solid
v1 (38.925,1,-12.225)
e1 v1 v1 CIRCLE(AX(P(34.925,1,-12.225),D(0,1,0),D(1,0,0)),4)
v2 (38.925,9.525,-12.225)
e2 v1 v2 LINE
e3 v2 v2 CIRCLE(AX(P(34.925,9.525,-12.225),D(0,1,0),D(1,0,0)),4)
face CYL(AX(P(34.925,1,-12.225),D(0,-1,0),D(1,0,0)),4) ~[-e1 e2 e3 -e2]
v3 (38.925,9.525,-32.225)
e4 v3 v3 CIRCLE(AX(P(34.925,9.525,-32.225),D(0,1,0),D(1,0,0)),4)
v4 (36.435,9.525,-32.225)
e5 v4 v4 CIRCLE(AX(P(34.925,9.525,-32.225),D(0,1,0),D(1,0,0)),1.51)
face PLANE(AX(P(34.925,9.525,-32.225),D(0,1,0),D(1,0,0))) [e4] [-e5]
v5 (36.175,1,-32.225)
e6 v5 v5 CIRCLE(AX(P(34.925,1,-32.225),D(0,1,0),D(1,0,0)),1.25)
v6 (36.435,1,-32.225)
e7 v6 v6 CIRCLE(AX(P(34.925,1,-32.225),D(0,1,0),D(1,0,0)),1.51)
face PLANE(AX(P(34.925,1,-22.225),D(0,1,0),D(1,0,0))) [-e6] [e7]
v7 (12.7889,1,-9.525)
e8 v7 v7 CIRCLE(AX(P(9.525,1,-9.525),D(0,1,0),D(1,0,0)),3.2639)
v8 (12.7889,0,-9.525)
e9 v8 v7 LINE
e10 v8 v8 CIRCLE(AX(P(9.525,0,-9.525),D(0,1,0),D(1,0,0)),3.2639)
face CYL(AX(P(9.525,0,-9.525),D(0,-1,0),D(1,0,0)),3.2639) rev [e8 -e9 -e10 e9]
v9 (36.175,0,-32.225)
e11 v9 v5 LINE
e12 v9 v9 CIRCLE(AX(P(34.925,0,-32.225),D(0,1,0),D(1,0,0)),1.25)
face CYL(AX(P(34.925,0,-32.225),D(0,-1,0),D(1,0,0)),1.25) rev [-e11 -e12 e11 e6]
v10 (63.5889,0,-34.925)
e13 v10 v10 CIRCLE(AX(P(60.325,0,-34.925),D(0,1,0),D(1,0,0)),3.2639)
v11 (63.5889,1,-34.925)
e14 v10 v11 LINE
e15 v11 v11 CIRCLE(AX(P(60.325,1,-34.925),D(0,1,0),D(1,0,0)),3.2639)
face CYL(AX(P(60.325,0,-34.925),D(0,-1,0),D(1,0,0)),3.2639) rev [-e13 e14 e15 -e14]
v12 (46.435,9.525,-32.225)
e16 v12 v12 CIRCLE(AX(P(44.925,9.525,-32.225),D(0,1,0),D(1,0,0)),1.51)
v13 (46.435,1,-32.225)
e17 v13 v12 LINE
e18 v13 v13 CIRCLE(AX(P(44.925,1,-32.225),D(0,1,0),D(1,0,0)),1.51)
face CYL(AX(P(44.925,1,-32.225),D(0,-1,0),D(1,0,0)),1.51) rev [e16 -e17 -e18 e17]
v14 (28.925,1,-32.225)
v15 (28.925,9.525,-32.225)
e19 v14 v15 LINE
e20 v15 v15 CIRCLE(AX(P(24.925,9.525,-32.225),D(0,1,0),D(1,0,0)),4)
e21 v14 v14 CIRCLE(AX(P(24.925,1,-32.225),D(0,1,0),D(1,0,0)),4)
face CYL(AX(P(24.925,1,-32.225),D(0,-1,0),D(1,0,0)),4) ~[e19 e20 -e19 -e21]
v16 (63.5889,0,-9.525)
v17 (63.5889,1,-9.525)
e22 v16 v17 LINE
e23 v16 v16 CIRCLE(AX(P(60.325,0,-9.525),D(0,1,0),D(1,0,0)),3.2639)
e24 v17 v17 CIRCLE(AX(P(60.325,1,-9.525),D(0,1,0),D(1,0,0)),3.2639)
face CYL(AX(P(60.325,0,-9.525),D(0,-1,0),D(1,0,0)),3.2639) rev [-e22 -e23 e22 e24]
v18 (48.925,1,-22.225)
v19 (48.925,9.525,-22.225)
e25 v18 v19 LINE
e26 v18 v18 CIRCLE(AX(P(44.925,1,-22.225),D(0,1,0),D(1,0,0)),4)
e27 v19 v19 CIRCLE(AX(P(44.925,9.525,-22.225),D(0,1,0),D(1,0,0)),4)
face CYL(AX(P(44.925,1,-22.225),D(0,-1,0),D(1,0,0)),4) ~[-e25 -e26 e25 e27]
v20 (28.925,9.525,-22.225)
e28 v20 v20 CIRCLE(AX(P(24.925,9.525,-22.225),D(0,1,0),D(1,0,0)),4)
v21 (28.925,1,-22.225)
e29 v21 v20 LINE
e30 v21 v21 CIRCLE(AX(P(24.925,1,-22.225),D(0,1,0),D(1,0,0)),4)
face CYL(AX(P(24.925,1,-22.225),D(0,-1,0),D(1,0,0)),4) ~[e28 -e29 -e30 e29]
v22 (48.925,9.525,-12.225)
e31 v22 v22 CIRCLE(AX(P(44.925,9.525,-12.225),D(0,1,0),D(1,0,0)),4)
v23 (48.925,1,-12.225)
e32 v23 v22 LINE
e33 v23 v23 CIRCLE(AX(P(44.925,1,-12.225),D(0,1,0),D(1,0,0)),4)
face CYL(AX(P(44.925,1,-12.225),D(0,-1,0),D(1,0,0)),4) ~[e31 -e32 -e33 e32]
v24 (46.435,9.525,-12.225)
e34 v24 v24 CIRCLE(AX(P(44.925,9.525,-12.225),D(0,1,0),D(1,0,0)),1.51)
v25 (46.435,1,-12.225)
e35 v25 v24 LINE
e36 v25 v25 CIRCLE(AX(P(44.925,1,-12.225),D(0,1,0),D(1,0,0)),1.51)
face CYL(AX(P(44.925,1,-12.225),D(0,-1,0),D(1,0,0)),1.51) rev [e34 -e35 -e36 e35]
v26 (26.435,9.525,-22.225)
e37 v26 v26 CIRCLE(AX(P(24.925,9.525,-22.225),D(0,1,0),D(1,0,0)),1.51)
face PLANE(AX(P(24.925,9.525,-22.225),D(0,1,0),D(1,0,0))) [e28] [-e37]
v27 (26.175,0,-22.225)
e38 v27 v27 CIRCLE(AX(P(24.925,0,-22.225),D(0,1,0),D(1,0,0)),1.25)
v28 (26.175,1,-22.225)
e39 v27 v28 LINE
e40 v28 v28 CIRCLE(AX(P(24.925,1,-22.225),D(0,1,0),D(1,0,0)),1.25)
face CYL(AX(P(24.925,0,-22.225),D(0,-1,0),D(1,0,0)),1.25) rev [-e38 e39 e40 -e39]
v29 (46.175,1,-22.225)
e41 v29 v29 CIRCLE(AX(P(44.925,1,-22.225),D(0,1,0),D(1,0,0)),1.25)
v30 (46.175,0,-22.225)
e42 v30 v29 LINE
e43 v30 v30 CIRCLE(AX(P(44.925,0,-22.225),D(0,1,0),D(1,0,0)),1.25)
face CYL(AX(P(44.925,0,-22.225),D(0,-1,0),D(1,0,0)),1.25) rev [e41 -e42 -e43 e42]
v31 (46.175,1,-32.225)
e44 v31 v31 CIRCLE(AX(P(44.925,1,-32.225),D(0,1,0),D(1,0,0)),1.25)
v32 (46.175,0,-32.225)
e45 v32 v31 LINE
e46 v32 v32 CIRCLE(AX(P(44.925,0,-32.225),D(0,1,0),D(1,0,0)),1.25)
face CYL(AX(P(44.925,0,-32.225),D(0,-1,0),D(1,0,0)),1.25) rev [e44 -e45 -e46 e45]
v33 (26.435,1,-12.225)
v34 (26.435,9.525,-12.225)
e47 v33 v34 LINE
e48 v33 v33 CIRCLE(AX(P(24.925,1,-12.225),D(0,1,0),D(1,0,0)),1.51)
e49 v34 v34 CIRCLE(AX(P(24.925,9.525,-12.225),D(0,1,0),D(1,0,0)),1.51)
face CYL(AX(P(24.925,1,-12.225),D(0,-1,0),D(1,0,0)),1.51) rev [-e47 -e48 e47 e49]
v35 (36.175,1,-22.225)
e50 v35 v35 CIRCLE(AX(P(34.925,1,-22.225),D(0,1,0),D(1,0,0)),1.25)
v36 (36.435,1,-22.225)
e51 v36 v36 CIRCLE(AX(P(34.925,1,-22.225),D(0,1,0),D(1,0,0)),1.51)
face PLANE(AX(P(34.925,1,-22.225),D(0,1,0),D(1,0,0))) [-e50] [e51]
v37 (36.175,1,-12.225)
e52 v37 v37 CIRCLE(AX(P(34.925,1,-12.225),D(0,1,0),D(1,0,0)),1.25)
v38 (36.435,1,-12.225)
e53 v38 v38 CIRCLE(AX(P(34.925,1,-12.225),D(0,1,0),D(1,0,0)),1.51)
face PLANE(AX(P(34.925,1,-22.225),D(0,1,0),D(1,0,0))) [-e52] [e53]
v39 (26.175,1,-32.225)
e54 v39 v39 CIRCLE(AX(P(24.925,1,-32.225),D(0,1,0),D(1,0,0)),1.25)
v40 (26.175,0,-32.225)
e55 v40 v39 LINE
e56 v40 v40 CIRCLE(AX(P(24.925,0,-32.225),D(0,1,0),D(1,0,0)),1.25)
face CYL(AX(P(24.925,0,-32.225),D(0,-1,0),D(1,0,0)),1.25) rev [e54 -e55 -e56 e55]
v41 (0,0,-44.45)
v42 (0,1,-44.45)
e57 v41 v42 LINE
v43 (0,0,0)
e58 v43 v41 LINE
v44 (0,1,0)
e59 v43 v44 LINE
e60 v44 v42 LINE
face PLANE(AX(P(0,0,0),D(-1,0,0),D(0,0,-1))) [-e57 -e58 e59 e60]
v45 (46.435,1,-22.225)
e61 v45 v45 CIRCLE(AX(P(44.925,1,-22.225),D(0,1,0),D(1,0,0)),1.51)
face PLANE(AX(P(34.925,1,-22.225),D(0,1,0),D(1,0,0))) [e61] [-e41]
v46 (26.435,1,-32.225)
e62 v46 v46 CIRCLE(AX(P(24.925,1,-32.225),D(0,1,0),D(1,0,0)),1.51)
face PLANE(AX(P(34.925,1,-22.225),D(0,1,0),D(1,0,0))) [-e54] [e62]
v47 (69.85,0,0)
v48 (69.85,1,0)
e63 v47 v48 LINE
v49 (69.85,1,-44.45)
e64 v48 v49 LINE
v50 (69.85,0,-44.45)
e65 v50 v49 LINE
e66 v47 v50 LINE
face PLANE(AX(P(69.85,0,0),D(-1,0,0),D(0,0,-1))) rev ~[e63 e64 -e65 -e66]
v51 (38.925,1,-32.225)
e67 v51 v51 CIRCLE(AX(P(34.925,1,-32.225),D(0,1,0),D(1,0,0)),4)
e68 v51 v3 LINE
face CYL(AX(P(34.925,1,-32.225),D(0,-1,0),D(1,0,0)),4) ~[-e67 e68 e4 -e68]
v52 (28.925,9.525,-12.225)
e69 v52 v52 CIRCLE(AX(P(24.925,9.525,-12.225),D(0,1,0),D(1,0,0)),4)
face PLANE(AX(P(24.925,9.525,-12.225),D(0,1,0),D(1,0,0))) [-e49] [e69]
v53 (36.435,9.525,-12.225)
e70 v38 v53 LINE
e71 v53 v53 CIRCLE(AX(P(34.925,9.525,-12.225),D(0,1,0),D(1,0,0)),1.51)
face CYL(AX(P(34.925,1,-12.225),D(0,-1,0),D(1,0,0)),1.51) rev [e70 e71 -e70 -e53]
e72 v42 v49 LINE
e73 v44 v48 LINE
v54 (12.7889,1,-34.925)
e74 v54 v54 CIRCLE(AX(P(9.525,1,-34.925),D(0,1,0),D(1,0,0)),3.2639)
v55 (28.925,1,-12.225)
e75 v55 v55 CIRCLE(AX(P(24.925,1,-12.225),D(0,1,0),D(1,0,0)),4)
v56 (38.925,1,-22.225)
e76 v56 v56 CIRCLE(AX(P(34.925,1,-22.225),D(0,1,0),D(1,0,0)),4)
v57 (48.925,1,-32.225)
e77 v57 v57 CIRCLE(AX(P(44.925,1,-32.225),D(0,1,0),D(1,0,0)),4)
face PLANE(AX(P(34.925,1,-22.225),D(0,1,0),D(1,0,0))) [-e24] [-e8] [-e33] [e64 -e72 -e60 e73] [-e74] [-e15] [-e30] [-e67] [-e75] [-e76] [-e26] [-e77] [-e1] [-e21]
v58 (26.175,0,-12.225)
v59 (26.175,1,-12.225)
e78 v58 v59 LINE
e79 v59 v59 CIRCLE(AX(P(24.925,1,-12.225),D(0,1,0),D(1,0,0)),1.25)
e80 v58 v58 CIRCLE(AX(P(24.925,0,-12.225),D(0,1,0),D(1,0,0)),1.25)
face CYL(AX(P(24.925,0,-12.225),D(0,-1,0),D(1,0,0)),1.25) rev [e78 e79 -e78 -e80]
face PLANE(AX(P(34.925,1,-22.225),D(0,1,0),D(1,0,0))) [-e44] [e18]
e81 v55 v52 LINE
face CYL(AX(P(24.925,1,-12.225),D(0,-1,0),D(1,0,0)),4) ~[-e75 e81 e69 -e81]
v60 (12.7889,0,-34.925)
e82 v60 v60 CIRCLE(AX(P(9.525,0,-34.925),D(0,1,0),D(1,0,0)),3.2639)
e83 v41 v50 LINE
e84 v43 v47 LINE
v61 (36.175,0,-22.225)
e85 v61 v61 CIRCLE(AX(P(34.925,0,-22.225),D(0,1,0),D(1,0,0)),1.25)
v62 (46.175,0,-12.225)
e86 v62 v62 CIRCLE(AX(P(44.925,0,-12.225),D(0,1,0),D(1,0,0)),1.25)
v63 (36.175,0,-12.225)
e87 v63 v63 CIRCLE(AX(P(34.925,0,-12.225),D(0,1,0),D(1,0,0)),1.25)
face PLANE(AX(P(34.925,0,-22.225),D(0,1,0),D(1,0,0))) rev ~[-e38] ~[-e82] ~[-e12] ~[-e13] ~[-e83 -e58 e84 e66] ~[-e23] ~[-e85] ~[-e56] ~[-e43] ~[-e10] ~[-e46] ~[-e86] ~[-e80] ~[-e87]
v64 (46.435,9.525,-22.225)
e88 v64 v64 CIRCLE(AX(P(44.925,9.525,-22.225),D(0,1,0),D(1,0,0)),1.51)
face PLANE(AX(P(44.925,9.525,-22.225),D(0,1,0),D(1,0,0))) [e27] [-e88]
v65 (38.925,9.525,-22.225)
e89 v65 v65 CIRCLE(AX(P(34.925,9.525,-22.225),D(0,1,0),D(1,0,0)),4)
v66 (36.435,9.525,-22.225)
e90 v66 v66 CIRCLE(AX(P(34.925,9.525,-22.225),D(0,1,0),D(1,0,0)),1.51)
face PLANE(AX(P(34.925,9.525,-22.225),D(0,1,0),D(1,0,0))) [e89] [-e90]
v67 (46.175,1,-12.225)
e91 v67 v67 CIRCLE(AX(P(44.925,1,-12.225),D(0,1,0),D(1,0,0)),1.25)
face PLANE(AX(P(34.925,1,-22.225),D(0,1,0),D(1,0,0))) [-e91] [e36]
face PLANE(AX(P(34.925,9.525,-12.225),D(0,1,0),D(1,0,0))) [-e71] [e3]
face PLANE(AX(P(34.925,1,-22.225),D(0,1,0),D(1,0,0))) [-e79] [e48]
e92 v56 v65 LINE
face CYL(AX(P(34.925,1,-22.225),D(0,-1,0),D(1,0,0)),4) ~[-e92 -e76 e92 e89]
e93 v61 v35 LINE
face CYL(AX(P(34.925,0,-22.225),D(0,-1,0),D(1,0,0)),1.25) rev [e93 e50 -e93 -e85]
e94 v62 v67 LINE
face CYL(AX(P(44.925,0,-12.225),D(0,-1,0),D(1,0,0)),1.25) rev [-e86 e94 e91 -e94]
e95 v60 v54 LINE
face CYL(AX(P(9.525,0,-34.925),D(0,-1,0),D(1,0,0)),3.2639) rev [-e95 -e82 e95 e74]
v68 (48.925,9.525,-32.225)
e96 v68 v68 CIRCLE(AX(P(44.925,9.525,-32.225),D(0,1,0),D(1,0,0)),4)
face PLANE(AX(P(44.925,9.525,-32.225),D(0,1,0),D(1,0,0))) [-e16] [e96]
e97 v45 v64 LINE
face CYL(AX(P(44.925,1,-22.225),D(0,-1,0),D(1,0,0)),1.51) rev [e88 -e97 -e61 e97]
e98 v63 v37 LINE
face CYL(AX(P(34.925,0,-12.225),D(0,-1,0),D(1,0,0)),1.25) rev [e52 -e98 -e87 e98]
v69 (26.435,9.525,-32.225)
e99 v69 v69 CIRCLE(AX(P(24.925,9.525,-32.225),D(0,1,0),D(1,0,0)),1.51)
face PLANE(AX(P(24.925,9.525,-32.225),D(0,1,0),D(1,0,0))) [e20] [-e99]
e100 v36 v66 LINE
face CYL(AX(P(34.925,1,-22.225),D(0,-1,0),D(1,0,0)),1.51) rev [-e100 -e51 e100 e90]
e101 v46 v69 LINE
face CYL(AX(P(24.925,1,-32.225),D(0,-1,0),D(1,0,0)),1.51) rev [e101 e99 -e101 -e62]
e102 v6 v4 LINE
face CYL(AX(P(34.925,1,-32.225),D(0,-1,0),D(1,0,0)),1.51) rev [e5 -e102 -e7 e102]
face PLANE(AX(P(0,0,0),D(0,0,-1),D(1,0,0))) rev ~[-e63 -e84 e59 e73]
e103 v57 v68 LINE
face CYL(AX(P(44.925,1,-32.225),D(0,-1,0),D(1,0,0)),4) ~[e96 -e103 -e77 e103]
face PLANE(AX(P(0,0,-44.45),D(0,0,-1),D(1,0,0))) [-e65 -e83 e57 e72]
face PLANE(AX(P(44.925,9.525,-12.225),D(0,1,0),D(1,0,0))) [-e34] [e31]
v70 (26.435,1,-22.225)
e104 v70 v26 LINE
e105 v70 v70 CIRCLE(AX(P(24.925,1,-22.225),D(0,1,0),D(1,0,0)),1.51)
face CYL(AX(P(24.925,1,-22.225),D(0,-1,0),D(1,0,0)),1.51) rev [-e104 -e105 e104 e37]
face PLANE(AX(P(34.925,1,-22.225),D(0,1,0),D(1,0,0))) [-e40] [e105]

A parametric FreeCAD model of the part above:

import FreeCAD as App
import Part
import Sketcher
Q = App.Units.Quantity


def add_polygon(sketch, points):
    """Adds a closed chain of lines whose ends are joined by coincident constraints."""
    first, n = sketch.GeometryCount, len(points)
    for a, b in zip(points, points[1:] + points[:1]):
        sketch.addGeometry(Part.LineSegment(App.Vector(*a, 0), App.Vector(*b, 0)), False)
    for i in range(n):
        sketch.addConstraint(Sketcher.Constraint("Coincident", first + i, 2, first + (i + 1) % n, 1))

doc = App.newDocument("Part")
body = doc.addObject("PartDesign::Body", "Body")

sketch1 = body.newObject("Sketcher::SketchObject", "Sketch")
sketch1.AttachmentSupport = (doc.getObject("XZ_Plane"), [""])
sketch1.MapMode = "FlatFace"
add_polygon(sketch1, [(0, -44.5), (0, 0), (69.8, 0), (69.8, -44.5)])
sketch1.addGeometry(Part.Circle(App.Vector(9.5, -9.5, 0), App.Vector(0, 0, 1), 3.3), False)
sketch1.addGeometry(Part.Circle(App.Vector(24.9, -12.2, 0), App.Vector(0, 0, 1), 1.2), False)
sketch1.addGeometry(Part.Circle(App.Vector(34.9, -12.2, 0), App.Vector(0, 0, 1), 1.2), False)
sketch1.addGeometry(Part.Circle(App.Vector(44.9, -12.2, 0), App.Vector(0, 0, 1), 1.2), False)
sketch1.addGeometry(Part.Circle(App.Vector(60.3, -9.5, 0), App.Vector(0, 0, 1), 3.3), False)
sketch1.addGeometry(Part.Circle(App.Vector(24.9, -22.2, 0), App.Vector(0, 0, 1), 1.2), False)
sketch1.addGeometry(Part.Circle(App.Vector(34.9, -22.2, 0), App.Vector(0, 0, 1), 1.2), False)
sketch1.addGeometry(Part.Circle(App.Vector(9.5, -34.9, 0), App.Vector(0, 0, 1), 3.3), False)
sketch1.addGeometry(Part.Circle(App.Vector(24.9, -32.2, 0), App.Vector(0, 0, 1), 1.2), False)
sketch1.addGeometry(Part.Circle(App.Vector(34.9, -32.2, 0), App.Vector(0, 0, 1), 1.2), False)
sketch1.addGeometry(Part.Circle(App.Vector(44.9, -22.2, 0), App.Vector(0, 0, 1), 1.2), False)
sketch1.addGeometry(Part.Circle(App.Vector(44.9, -32.2, 0), App.Vector(0, 0, 1), 1.2), False)
sketch1.addGeometry(Part.Circle(App.Vector(60.3, -34.9, 0), App.Vector(0, 0, 1), 3.3), False)
sketch1.addConstraint(Sketcher.Constraint("Vertical", 0))
sketch1.addConstraint(Sketcher.Constraint("Horizontal", 1))
sketch1.addConstraint(Sketcher.Constraint("Vertical", 2))
sketch1.addConstraint(Sketcher.Constraint("Horizontal", 3))
sketch1.addConstraint(Sketcher.Constraint("Coincident", 0, 2, -1, 1))
sketch1.addConstraint(Sketcher.Constraint("Equal", 5, 6))
sketch1.addConstraint(Sketcher.Constraint("Equal", 6, 7))
sketch1.addConstraint(Sketcher.Constraint("Equal", 4, 8))
sketch1.addConstraint(Sketcher.Constraint("Equal", 7, 9))
sketch1.addConstraint(Sketcher.Constraint("Equal", 9, 10))
sketch1.addConstraint(Sketcher.Constraint("Equal", 8, 11))
sketch1.addConstraint(Sketcher.Constraint("Equal", 10, 12))
sketch1.addConstraint(Sketcher.Constraint("Equal", 12, 13))
sketch1.addConstraint(Sketcher.Constraint("Equal", 13, 14))
sketch1.addConstraint(Sketcher.Constraint("Equal", 14, 15))
sketch1.addConstraint(Sketcher.Constraint("Equal", 11, 16))
sketch1.addConstraint(Sketcher.Constraint("Horizontal", 5, 3, 6, 3))
sketch1.addConstraint(Sketcher.Constraint("Horizontal", 6, 3, 7, 3))
sketch1.addConstraint(Sketcher.Constraint("Horizontal", 4, 3, 8, 3))
sketch1.addConstraint(Sketcher.Constraint("Horizontal", 9, 3, 10, 3))
sketch1.addConstraint(Sketcher.Constraint("Horizontal", 12, 3, 13, 3))
sketch1.addConstraint(Sketcher.Constraint("Horizontal", 10, 3, 14, 3))
sketch1.addConstraint(Sketcher.Constraint("Horizontal", 13, 3, 15, 3))
sketch1.addConstraint(Sketcher.Constraint("Horizontal", 11, 3, 16, 3))
sketch1.addConstraint(Sketcher.Constraint("Vertical", 5, 3, 9, 3))
sketch1.addConstraint(Sketcher.Constraint("Vertical", 6, 3, 10, 3))
sketch1.addConstraint(Sketcher.Constraint("Vertical", 4, 3, 11, 3))
sketch1.addConstraint(Sketcher.Constraint("Vertical", 9, 3, 12, 3))
sketch1.addConstraint(Sketcher.Constraint("Vertical", 10, 3, 13, 3))
sketch1.addConstraint(Sketcher.Constraint("Vertical", 7, 3, 14, 3))
sketch1.addConstraint(Sketcher.Constraint("Vertical", 14, 3, 15, 3))
sketch1.addConstraint(Sketcher.Constraint("Vertical", 8, 3, 16, 3))
sketch1.addConstraint(Sketcher.Constraint("Diameter", 5, Q("2.5 mm")))
sketch1.addConstraint(Sketcher.Constraint("DistanceX", 5, 3, 6, 3, Q("10 mm")))
sketch1.addConstraint(Sketcher.Constraint("DistanceX", 6, 3, 7, 3, Q("10 mm")))
sketch1.addConstraint(Sketcher.Constraint("DistanceY", 9, 3, 5, 3, Q("10 mm")))
sketch1.addConstraint(Sketcher.Constraint("DistanceY", 12, 3, 9, 3, Q("10 mm")))
sketch1.addConstraint(Sketcher.Constraint("Diameter", 4, Q("6.5278 mm")))
sketch1.addConstraint(Sketcher.Constraint("DistanceX", 1, 1, 1, 2, Q("69.85 mm")))
sketch1.addConstraint(Sketcher.Constraint("DistanceY", 0, 1, 0, 2, Q("44.45 mm")))
sketch1.addConstraint(Sketcher.Constraint("DistanceX", 4, 3, 5, 3, Q("15.4 mm")))
sketch1.addConstraint(Sketcher.Constraint("DistanceY", 5, 3, 4, 3, Q("2.7 mm")))
sketch1.addConstraint(Sketcher.Constraint("DistanceX", 7, 3, 8, 3, Q("15.4 mm")))
sketch1.addConstraint(Sketcher.Constraint("DistanceY", 11, 3, 9, 3, Q("12.7 mm")))
sketch1.addConstraint(Sketcher.Constraint("DistanceX", -1, 1, 4, 3, Q("9.525 mm")))
sketch1.addConstraint(Sketcher.Constraint("DistanceY", 4, 3, -1, 1, Q("9.525 mm")))
pad1 = body.newObject("PartDesign::Pad", "Pad")
pad1.Profile = sketch1
pad1.Length = 1
pad1.Reversed = True

sketch2 = body.newObject("Sketcher::SketchObject", "Sketch001")
sketch2.AttachmentSupport = (doc.getObject("XZ_Plane"), [""])
sketch2.MapMode = "FlatFace"
sketch2.AttachmentOffset = App.Placement(App.Vector(0, 0, -1), App.Rotation())
sketch2.addGeometry(Part.Circle(App.Vector(34.9, -22.2, 0), App.Vector(0, 0, 1), 4), False)
sketch2.addGeometry(Part.Circle(App.Vector(34.9, -22.2, 0), App.Vector(0, 0, 1), 1.5), False)
sketch2.addGeometry(Part.Circle(App.Vector(44.9, -22.2, 0), App.Vector(0, 0, 1), 4), False)
sketch2.addGeometry(Part.Circle(App.Vector(44.9, -22.2, 0), App.Vector(0, 0, 1), 1.5), False)
sketch2.addGeometry(Part.Circle(App.Vector(44.9, -32.2, 0), App.Vector(0, 0, 1), 4), False)
sketch2.addGeometry(Part.Circle(App.Vector(44.9, -32.2, 0), App.Vector(0, 0, 1), 1.5), False)
sketch2.addGeometry(Part.Circle(App.Vector(34.9, -32.2, 0), App.Vector(0, 0, 1), 4), False)
sketch2.addGeometry(Part.Circle(App.Vector(34.9, -32.2, 0), App.Vector(0, 0, 1), 1.5), False)
sketch2.addGeometry(Part.Circle(App.Vector(44.9, -12.2, 0), App.Vector(0, 0, 1), 4), False)
sketch2.addGeometry(Part.Circle(App.Vector(44.9, -12.2, 0), App.Vector(0, 0, 1), 1.5), False)
sketch2.addGeometry(Part.Circle(App.Vector(34.9, -12.2, 0), App.Vector(0, 0, 1), 4), False)
sketch2.addGeometry(Part.Circle(App.Vector(34.9, -12.2, 0), App.Vector(0, 0, 1), 1.5), False)
sketch2.addGeometry(Part.Circle(App.Vector(24.9, -22.2, 0), App.Vector(0, 0, 1), 4), False)
sketch2.addGeometry(Part.Circle(App.Vector(24.9, -22.2, 0), App.Vector(0, 0, 1), 1.5), False)
sketch2.addGeometry(Part.Circle(App.Vector(24.9, -32.2, 0), App.Vector(0, 0, 1), 4), False)
sketch2.addGeometry(Part.Circle(App.Vector(24.9, -32.2, 0), App.Vector(0, 0, 1), 1.5), False)
sketch2.addGeometry(Part.Circle(App.Vector(24.9, -12.2, 0), App.Vector(0, 0, 1), 4), False)
sketch2.addGeometry(Part.Circle(App.Vector(24.9, -12.2, 0), App.Vector(0, 0, 1), 1.5), False)
sketch2.addConstraint(Sketcher.Constraint("Coincident", 1, 3, 0, 3))
sketch2.addConstraint(Sketcher.Constraint("Coincident", 3, 3, 2, 3))
sketch2.addConstraint(Sketcher.Constraint("Coincident", 5, 3, 4, 3))
sketch2.addConstraint(Sketcher.Constraint("Coincident", 7, 3, 6, 3))
sketch2.addConstraint(Sketcher.Constraint("Coincident", 9, 3, 8, 3))
sketch2.addConstraint(Sketcher.Constraint("Coincident", 11, 3, 10, 3))
sketch2.addConstraint(Sketcher.Constraint("Coincident", 13, 3, 12, 3))
sketch2.addConstraint(Sketcher.Constraint("Coincident", 15, 3, 14, 3))
sketch2.addConstraint(Sketcher.Constraint("Coincident", 17, 3, 16, 3))
sketch2.addConstraint(Sketcher.Constraint("Equal", 0, 2))
sketch2.addConstraint(Sketcher.Constraint("Equal", 1, 3))
sketch2.addConstraint(Sketcher.Constraint("Equal", 2, 4))
sketch2.addConstraint(Sketcher.Constraint("Equal", 3, 5))
sketch2.addConstraint(Sketcher.Constraint("Equal", 4, 6))
sketch2.addConstraint(Sketcher.Constraint("Equal", 5, 7))
sketch2.addConstraint(Sketcher.Constraint("Equal", 6, 8))
sketch2.addConstraint(Sketcher.Constraint("Equal", 7, 9))
sketch2.addConstraint(Sketcher.Constraint("Equal", 8, 10))
sketch2.addConstraint(Sketcher.Constraint("Equal", 9, 11))
sketch2.addConstraint(Sketcher.Constraint("Equal", 10, 12))
sketch2.addConstraint(Sketcher.Constraint("Equal", 11, 13))
sketch2.addConstraint(Sketcher.Constraint("Equal", 12, 14))
sketch2.addConstraint(Sketcher.Constraint("Equal", 13, 15))
sketch2.addConstraint(Sketcher.Constraint("Equal", 14, 16))
sketch2.addConstraint(Sketcher.Constraint("Equal", 15, 17))
sketch2.addConstraint(Sketcher.Constraint("Horizontal", 1, 3, 2, 3))
sketch2.addConstraint(Sketcher.Constraint("Horizontal", 5, 3, 6, 3))
sketch2.addConstraint(Sketcher.Constraint("Horizontal", 9, 3, 10, 3))
sketch2.addConstraint(Sketcher.Constraint("Horizontal", 3, 3, 12, 3))
sketch2.addConstraint(Sketcher.Constraint("Horizontal", 7, 3, 14, 3))
sketch2.addConstraint(Sketcher.Constraint("Horizontal", 11, 3, 16, 3))
sketch2.addConstraint(Sketcher.Constraint("Vertical", 3, 3, 4, 3))
sketch2.addConstraint(Sketcher.Constraint("Vertical", 1, 3, 6, 3))
sketch2.addConstraint(Sketcher.Constraint("Vertical", 5, 3, 8, 3))
sketch2.addConstraint(Sketcher.Constraint("Vertical", 7, 3, 10, 3))
sketch2.addConstraint(Sketcher.Constraint("Vertical", 13, 3, 14, 3))
sketch2.addConstraint(Sketcher.Constraint("Vertical", 15, 3, 16, 3))
sketch2.addConstraint(Sketcher.Constraint("Diameter", 0, Q("8 mm")))
sketch2.addConstraint(Sketcher.Constraint("Diameter", 1, Q("3.02 mm")))
sketch2.addConstraint(Sketcher.Constraint("DistanceX", 0, 3, 2, 3, Q("10 mm")))
sketch2.addConstraint(Sketcher.Constraint("DistanceY", 4, 3, 2, 3, Q("10 mm")))
sketch2.addConstraint(Sketcher.Constraint("DistanceY", 2, 3, 8, 3, Q("10 mm")))
sketch2.addConstraint(Sketcher.Constraint("DistanceX", 12, 3, 0, 3, Q("10 mm")))
sketch2.addConstraint(Sketcher.Constraint("DistanceX", -1, 1, 0, 3, Q("34.925 mm")))
sketch2.addConstraint(Sketcher.Constraint("DistanceY", 0, 3, -1, 1, Q("22.225 mm")))
pad2 = body.newObject("PartDesign::Pad", "Pad001")
pad2.Profile = sketch2
pad2.Length = 8.525
pad2.Reversed = True

doc.recompute()
